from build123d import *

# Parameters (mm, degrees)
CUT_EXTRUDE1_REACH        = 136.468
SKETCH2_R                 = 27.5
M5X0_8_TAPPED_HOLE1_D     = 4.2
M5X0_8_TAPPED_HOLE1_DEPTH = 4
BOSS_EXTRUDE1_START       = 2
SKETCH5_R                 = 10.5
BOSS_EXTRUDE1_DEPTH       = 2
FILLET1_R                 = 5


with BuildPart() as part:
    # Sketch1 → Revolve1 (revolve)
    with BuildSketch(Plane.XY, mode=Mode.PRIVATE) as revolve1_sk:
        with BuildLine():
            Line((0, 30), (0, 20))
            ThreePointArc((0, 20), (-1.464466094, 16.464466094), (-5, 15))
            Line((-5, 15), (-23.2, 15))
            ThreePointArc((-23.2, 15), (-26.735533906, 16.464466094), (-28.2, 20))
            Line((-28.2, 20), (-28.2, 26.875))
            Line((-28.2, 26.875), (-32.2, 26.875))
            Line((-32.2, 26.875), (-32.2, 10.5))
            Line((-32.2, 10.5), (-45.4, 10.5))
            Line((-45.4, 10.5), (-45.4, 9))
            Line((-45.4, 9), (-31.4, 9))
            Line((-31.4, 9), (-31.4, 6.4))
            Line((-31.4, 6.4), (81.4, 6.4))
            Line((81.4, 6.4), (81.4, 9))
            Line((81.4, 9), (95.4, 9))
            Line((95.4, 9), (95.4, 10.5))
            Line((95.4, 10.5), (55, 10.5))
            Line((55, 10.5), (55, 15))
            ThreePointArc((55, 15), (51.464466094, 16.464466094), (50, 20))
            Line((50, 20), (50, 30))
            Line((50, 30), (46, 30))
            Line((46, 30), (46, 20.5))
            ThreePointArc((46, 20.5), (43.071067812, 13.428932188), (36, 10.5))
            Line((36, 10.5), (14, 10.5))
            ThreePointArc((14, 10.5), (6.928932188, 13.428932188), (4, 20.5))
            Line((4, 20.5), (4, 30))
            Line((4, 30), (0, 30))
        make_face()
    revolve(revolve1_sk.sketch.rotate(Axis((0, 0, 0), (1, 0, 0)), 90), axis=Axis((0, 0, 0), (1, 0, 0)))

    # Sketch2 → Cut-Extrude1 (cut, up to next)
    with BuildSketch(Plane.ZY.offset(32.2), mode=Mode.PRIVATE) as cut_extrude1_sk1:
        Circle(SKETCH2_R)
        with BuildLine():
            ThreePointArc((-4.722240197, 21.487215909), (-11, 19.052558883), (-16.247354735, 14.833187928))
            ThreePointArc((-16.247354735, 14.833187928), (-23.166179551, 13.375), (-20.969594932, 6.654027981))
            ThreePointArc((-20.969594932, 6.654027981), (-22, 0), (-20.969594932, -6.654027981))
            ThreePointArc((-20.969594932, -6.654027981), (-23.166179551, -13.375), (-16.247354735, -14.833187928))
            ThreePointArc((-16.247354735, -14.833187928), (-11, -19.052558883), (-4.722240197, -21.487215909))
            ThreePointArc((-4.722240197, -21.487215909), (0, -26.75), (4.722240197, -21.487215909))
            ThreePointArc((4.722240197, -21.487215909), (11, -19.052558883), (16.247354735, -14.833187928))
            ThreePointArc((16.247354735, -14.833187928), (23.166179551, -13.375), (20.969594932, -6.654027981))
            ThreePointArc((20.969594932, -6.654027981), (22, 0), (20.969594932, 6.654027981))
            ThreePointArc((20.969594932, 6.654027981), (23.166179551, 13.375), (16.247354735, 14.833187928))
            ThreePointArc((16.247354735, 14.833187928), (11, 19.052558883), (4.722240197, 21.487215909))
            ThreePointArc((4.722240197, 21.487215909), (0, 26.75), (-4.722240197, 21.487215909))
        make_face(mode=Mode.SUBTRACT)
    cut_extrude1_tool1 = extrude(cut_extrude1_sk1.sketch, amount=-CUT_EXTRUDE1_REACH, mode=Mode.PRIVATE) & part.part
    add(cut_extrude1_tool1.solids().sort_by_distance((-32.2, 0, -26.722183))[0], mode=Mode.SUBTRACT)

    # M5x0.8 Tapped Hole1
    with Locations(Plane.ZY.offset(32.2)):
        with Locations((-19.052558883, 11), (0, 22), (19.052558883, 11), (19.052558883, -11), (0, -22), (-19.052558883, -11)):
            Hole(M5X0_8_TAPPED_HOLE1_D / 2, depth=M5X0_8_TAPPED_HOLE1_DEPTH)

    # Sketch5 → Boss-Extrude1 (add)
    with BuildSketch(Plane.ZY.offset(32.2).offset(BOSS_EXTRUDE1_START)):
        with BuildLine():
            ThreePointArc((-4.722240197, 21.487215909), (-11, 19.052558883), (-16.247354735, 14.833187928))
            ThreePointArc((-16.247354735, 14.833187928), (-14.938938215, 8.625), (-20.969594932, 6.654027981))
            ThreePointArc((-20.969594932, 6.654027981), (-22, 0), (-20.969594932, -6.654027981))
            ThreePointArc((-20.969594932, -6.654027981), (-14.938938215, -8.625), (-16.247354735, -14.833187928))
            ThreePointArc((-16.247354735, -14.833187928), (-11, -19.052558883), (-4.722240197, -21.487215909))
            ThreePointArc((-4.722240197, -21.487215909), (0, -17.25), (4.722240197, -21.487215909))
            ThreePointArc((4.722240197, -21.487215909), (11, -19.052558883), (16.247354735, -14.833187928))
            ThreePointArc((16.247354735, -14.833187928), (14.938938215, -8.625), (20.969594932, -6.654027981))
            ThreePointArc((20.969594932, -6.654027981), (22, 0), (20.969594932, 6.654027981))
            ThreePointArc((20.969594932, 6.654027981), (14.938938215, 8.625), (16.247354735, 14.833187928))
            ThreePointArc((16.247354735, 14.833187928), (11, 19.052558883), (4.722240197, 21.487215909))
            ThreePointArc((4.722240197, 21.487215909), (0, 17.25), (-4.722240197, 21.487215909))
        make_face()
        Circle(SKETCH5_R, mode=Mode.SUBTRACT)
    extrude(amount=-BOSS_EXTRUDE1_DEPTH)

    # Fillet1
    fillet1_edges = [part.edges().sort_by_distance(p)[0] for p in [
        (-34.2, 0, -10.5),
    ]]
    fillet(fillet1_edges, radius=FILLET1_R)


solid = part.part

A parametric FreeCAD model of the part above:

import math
import FreeCAD as App
import Part
import Sketcher

V = App.Vector


def edges_at(feature, points):
    """Names of the edges that pass closest to the given points."""
    edges = feature.Shape.Edges
    near = lambda p: min(range(len(edges)), key=lambda i: edges[i].distToShape(Part.Vertex(*p))[0])
    return sorted({f"Edge{near(p) + 1}" for p in points})

doc = App.newDocument("Part")
body = doc.addObject("PartDesign::Body", "Body")

# Sketch on XY plane
sketch1 = body.newObject("Sketcher::SketchObject", "Sketch")
sketch1.AttachmentSupport = (doc.getObject("XY_Plane"), [""])
sketch1.MapMode = "FlatFace"
sketch1.addGeometry([
    Part.LineSegment(V(0, 30, 0), V(0, 20, 0)),  # 0
    Part.ArcOfCircle(Part.Circle(V(-5, 20, 0), V(0, 0, 1), 5), math.radians(-90), math.radians(0)),  # 1
    Part.LineSegment(V(-5, 15, 0), V(-23.2, 15, 0)),  # 2
    Part.ArcOfCircle(Part.Circle(V(-23.2, 20, 0), V(0, 0, 1), 5), math.radians(180), math.radians(270)),  # 3
    Part.LineSegment(V(-28.2, 20, 0), V(-28.2, 26.9, 0)),  # 4
    Part.LineSegment(V(-28.2, 26.9, 0), V(-32.2, 26.9, 0)),  # 5
    Part.LineSegment(V(-32.2, 26.9, 0), V(-32.2, 10.5, 0)),  # 6
    Part.LineSegment(V(-32.2, 10.5, 0), V(-45.4, 10.5, 0)),  # 7
    Part.LineSegment(V(-45.4, 10.5, 0), V(-45.4, 9, 0)),  # 8
    Part.LineSegment(V(-45.4, 9, 0), V(-31.4, 9, 0)),  # 9
    Part.LineSegment(V(-31.4, 9, 0), V(-31.4, 6.4, 0)),  # 10
    Part.LineSegment(V(-31.4, 6.4, 0), V(81.4, 6.4, 0)),  # 11
    Part.LineSegment(V(81.4, 6.4, 0), V(81.4, 9, 0)),  # 12
    Part.LineSegment(V(81.4, 9, 0), V(95.4, 9, 0)),  # 13
    Part.LineSegment(V(95.4, 9, 0), V(95.4, 10.5, 0)),  # 14
    Part.LineSegment(V(95.4, 10.5, 0), V(55, 10.5, 0)),  # 15
    Part.LineSegment(V(55, 10.5, 0), V(55, 15, 0)),  # 16
    Part.ArcOfCircle(Part.Circle(V(55, 20, 0), V(0, 0, 1), 5), math.radians(180), math.radians(270)),  # 17
    Part.LineSegment(V(50, 20, 0), V(50, 30, 0)),  # 18
    Part.LineSegment(V(50, 30, 0), V(46, 30, 0)),  # 19
    Part.LineSegment(V(46, 30, 0), V(46, 20.5, 0)),  # 20
    Part.ArcOfCircle(Part.Circle(V(36, 20.5, 0), V(0, 0, 1), 10), math.radians(-90), math.radians(0)),  # 21
    Part.LineSegment(V(36, 10.5, 0), V(14, 10.5, 0)),  # 22
    Part.ArcOfCircle(Part.Circle(V(14, 20.5, 0), V(0, 0, 1), 10), math.radians(180), math.radians(270)),  # 23
    Part.LineSegment(V(4, 20.5, 0), V(4, 30, 0)),  # 24
    Part.LineSegment(V(4, 30, 0), V(0, 30, 0)),  # 25
], False)
sketch1.addConstraint([
    Sketcher.Constraint("Tangent", 0, 2, 1, 2),
    Sketcher.Constraint("Tangent", 1, 1, 2, 1),
    Sketcher.Constraint("Tangent", 2, 2, 3, 2),
    Sketcher.Constraint("Tangent", 3, 1, 4, 1),
    Sketcher.Constraint("Coincident", 4, 2, 5, 1),
    Sketcher.Constraint("Coincident", 5, 2, 6, 1),
    Sketcher.Constraint("Coincident", 6, 2, 7, 1),
    Sketcher.Constraint("Coincident", 7, 2, 8, 1),
    Sketcher.Constraint("Coincident", 8, 2, 9, 1),
    Sketcher.Constraint("Coincident", 9, 2, 10, 1),
    Sketcher.Constraint("Coincident", 10, 2, 11, 1),
    Sketcher.Constraint("Coincident", 11, 2, 12, 1),
    Sketcher.Constraint("Coincident", 12, 2, 13, 1),
    Sketcher.Constraint("Coincident", 13, 2, 14, 1),
    Sketcher.Constraint("Coincident", 14, 2, 15, 1),
    Sketcher.Constraint("Coincident", 15, 2, 16, 1),
    Sketcher.Constraint("Coincident", 16, 2, 17, 2),
    Sketcher.Constraint("Tangent", 17, 1, 18, 1),
    Sketcher.Constraint("Coincident", 18, 2, 19, 1),
    Sketcher.Constraint("Coincident", 19, 2, 20, 1),
    Sketcher.Constraint("Tangent", 20, 2, 21, 2),
    Sketcher.Constraint("Tangent", 21, 1, 22, 1),
    Sketcher.Constraint("Tangent", 22, 2, 23, 2),
    Sketcher.Constraint("Tangent", 23, 1, 24, 1),
    Sketcher.Constraint("Coincident", 24, 2, 25, 1),
    Sketcher.Constraint("Coincident", 25, 2, 0, 1),
    Sketcher.Constraint("Vertical", 0),
    Sketcher.Constraint("Horizontal", 2),
    Sketcher.Constraint("Vertical", 4),
    Sketcher.Constraint("Horizontal", 5),
    Sketcher.Constraint("Vertical", 6),
    Sketcher.Constraint("Horizontal", 7),
    Sketcher.Constraint("Vertical", 8),
    Sketcher.Constraint("Horizontal", 9),
    Sketcher.Constraint("Vertical", 10),
    Sketcher.Constraint("Horizontal", 11),
    Sketcher.Constraint("Vertical", 12),
    Sketcher.Constraint("Horizontal", 13),
    Sketcher.Constraint("Vertical", 14),
    Sketcher.Constraint("Horizontal", 15),
    Sketcher.Constraint("Vertical", 16),
    Sketcher.Constraint("Vertical", 18),
    Sketcher.Constraint("Horizontal", 19),
    Sketcher.Constraint("Vertical", 20),
    Sketcher.Constraint("Horizontal", 22),
    Sketcher.Constraint("Vertical", 24),
    Sketcher.Constraint("Horizontal", 25),
    Sketcher.Constraint("Equal", 1, 3),
    Sketcher.Constraint("Equal", 3, 17),
    Sketcher.Constraint("Equal", 21, 23),
    Sketcher.Constraint("PointOnObject", 0, 2, -2),
    Sketcher.Constraint("Horizontal", 3, 3, 17, 3),
    Sketcher.Constraint("Horizontal", 9, 2, 12, 2),
    Sketcher.Constraint("Horizontal", 7, 2, 14, 2),
    Sketcher.Constraint("Horizontal", 15, 2, 21, 1),
    Sketcher.Constraint("Horizontal", 19, 2, 24, 2),
    Sketcher.Constraint("Vertical", 17, 3, 15, 2),
    Sketcher.Constraint("Equal", 9, 13),
    Sketcher.Constraint("Equal", 5, 19),
    Sketcher.Constraint("Equal", 19, 25),
    Sketcher.Constraint("Radius", 1, 5.0),
    Sketcher.Constraint("Radius", 21, 10.0),
    Sketcher.Constraint("DistanceX", 5, 2, 5, 1, 4.0),
    Sketcher.Constraint("DistanceX", 9, 1, 9, 2, 14.0),
    Sketcher.Constraint("DistanceX", 22, 2, 22, 1, 22.0),
    Sketcher.Constraint("DistanceY", 0, 2, 0, 1, 10.0),
    Sketcher.Constraint("DistanceX", 2, 2, 2, 1, 18.2),
    Sketcher.Constraint("DistanceX", 7, 2, 7, 1, 13.2),
    Sketcher.Constraint("DistanceX", 11, 1, 11, 2, 112.8),
    Sketcher.Constraint("DistanceY", 8, 2, 8, 1, 1.5),
    Sketcher.Constraint("DistanceY", 10, 2, 10, 1, 2.6),
    Sketcher.Constraint("DistanceY", 16, 1, 16, 2, 4.5),
    Sketcher.Constraint("DistanceY", -1, 1, 1, 3, 20.0),
    Sketcher.Constraint("DistanceY", 4, 1, 4, 2, 6.875),
])
revolution = body.newObject("PartDesign::Revolution", "Revolution")
revolution.Profile = sketch1
revolution.ReferenceAxis = (sketch1, ["H_Axis"])
revolution.Angle = 360

# Sketch on YZ plane
sketch2 = body.newObject("Sketcher::SketchObject", "Sketch001")
sketch2.AttachmentSupport = (doc.getObject("YZ_Plane"), [""])
sketch2.MapMode = "FlatFace"
sketch2.AttachmentOffset = App.Placement(V(0, 0, -32.2), App.Rotation())
sketch2.addGeometry([
    Part.Circle(V(0, 0, 0), V(0, 0, 1), 27.5),  # 0
    Part.ArcOfCircle(Part.Circle(V(0, 0, 0), V(0, 0, 1), 22), math.radians(-48), math.radians(-12)),  # 1
    Part.ArcOfCircle(Part.Circle(V(22, 0, 0), V(0, 0, 1), 4.8), math.radians(-96), math.radians(96)),  # 2
    Part.ArcOfCircle(Part.Circle(V(0, 0, 0), V(0, 0, 1), 22), math.radians(12), math.radians(48)),  # 3
    Part.ArcOfCircle(Part.Circle(V(11, 19.1, 0), V(0, 0, 1), 4.8), math.radians(-36), math.radians(156)),  # 4
    Part.ArcOfCircle(Part.Circle(V(0, 0, 0), V(0, 0, 1), 22), math.radians(72), math.radians(108)),  # 5
    Part.ArcOfCircle(Part.Circle(V(-11, 19.1, 0), V(0, 0, 1), 4.8), math.radians(24), math.radians(216)),  # 6
    Part.ArcOfCircle(Part.Circle(V(0, 0, 0), V(0, 0, 1), 22), math.radians(132), math.radians(168)),  # 7
    Part.ArcOfCircle(Part.Circle(V(-22, 0, 0), V(0, 0, 1), 4.8), math.radians(84), math.radians(276)),  # 8
    Part.ArcOfCircle(Part.Circle(V(0, 0, 0), V(0, 0, 1), 22), math.radians(-168), math.radians(-132)),  # 9
    Part.ArcOfCircle(Part.Circle(V(-11, -19.1, 0), V(0, 0, 1), 4.8), math.radians(144), math.radians(336)),  # 10
    Part.ArcOfCircle(Part.Circle(V(0, 0, 0), V(0, 0, 1), 22), math.radians(-108), math.radians(-72)),  # 11
    Part.ArcOfCircle(Part.Circle(V(11, -19.1, 0), V(0, 0, 1), 4.8), math.radians(-156), math.radians(36)),  # 12
], False)
sketch2.addConstraint([
    Sketcher.Constraint("Coincident", 1, 2, 2, 1),
    Sketcher.Constraint("Coincident", 2, 2, 3, 1),
    Sketcher.Constraint("Coincident", 3, 2, 4, 1),
    Sketcher.Constraint("Coincident", 4, 2, 5, 1),
    Sketcher.Constraint("Coincident", 5, 2, 6, 1),
    Sketcher.Constraint("Coincident", 6, 2, 7, 1),
    Sketcher.Constraint("Coincident", 7, 2, 8, 1),
    Sketcher.Constraint("Coincident", 8, 2, 9, 1),
    Sketcher.Constraint("Coincident", 9, 2, 10, 1),
    Sketcher.Constraint("Coincident", 10, 2, 11, 1),
    Sketcher.Constraint("Coincident", 11, 2, 12, 1),
    Sketcher.Constraint("Coincident", 12, 2, 1, 1),
    Sketcher.Constraint("Coincident", 0, 3, -1, 1),
    Sketcher.Constraint("Coincident", 1, 3, -1, 1),
    Sketcher.Constraint("Coincident", 3, 3, -1, 1),
    Sketcher.Constraint("Coincident", 5, 3, -1, 1),
    Sketcher.Constraint("Coincident", 7, 3, -1, 1),
    Sketcher.Constraint("Coincident", 9, 3, -1, 1),
    Sketcher.Constraint("Coincident", 11, 3, -1, 1),
    Sketcher.Constraint("Equal", 1, 3),
    Sketcher.Constraint("Equal", 2, 4),
    Sketcher.Constraint("Equal", 3, 5),
    Sketcher.Constraint("Equal", 4, 6),
    Sketcher.Constraint("Equal", 5, 7),
    Sketcher.Constraint("Equal", 6, 8),
    Sketcher.Constraint("Equal", 7, 9),
    Sketcher.Constraint("Equal", 8, 10),
    Sketcher.Constraint("Equal", 9, 11),
    Sketcher.Constraint("Equal", 10, 12),
    Sketcher.Constraint("Symmetric", 2, 3, 8, 3, -1, 1),
    Sketcher.Constraint("Symmetric", 4, 3, 10, 3, -1, 1),
    Sketcher.Constraint("Symmetric", 6, 3, 12, 3, -1, 1),
    Sketcher.Constraint("Symmetric", 4, 3, 6, 3, -2),
    Sketcher.Constraint("PointOnObject", 2, 3, -1),
    Sketcher.Constraint("Diameter", 0, 55.0),
    Sketcher.Constraint("Radius", 1, 22.0),
    Sketcher.Constraint("Radius", 2, 4.75),
    Sketcher.Constraint("DistanceX", -1, 1, 2, 3, 22.0),
    Sketcher.Constraint("DistanceX", -1, 1, 4, 3, 11.0),
    Sketcher.Constraint("DistanceY", -1, 1, 4, 3, 19.052559),
])
pocket1 = body.newObject("PartDesign::Pocket", "Pocket")
pocket1.Profile = sketch2
pocket1.Length = 4
pocket1.Reversed = True

# Sketch on YZ plane
sketch3 = body.newObject("Sketcher::SketchObject", "Sketch002")
sketch3.AttachmentSupport = (doc.getObject("YZ_Plane"), [""])
sketch3.MapMode = "FlatFace"
sketch3.AttachmentOffset = App.Placement(V(0, 0, -32.2), App.Rotation())
sketch3.addGeometry([
    Part.Circle(V(11, -19.1, 0), V(0, 0, 1), 2.1),  # 0
    Part.Circle(V(22, 0, 0), V(0, 0, 1), 2.1),  # 1
    Part.Circle(V(11, 19.1, 0), V(0, 0, 1), 2.1),  # 2
    Part.Circle(V(-11, 19.1, 0), V(0, 0, 1), 2.1),  # 3
    Part.Circle(V(-22, 0, 0), V(0, 0, 1), 2.1),  # 4
    Part.Circle(V(-11, -19.1, 0), V(0, 0, 1), 2.1),  # 5
], False)
sketch3.addConstraint([
    Sketcher.Constraint("Equal", 0, 1),
    Sketcher.Constraint("Equal", 1, 2),
    Sketcher.Constraint("Equal", 2, 3),
    Sketcher.Constraint("Equal", 3, 4),
    Sketcher.Constraint("Equal", 4, 5),
    Sketcher.Constraint("Symmetric", 0, 3, 3, 3, -1, 1),
    Sketcher.Constraint("Symmetric", 1, 3, 4, 3, -1, 1),
    Sketcher.Constraint("Symmetric", 2, 3, 5, 3, -1, 1),
    Sketcher.Constraint("Symmetric", 2, 3, 3, 3, -2),
    Sketcher.Constraint("PointOnObject", 1, 3, -1),
    Sketcher.Constraint("Diameter", 0, 4.2),
    Sketcher.Constraint("DistanceX", -1, 1, 0, 3, 11.0),
    Sketcher.Constraint("DistanceX", -1, 1, 1, 3, 22.0),
    Sketcher.Constraint("DistanceY", 0, 3, -1, 1, 19.052559),
])
doc.recompute()
hole = body.newObject("PartDesign::Hole", "Hole")
hole.Profile = sketch3
hole.ThreadType = "None"
hole.Diameter = 4.2
hole.DepthType = "Dimension"
hole.Depth = 4
hole.DrillPoint = "Flat"
hole.Reversed = True

# Sketch on YZ plane
sketch4 = body.newObject("Sketcher::SketchObject", "Sketch003")
sketch4.AttachmentSupport = (doc.getObject("YZ_Plane"), [""])
sketch4.MapMode = "FlatFace"
sketch4.AttachmentOffset = App.Placement(V(0, 0, -34.2), App.Rotation())
sketch4.addGeometry([
    Part.ArcOfCircle(Part.Circle(V(0, 0, 0), V(0, 0, 1), 22), math.radians(-48), math.radians(-12)),  # 0
    Part.ArcOfCircle(Part.Circle(V(11, -19.1, 0), V(0, 0, 1), 4.8), math.radians(36), math.radians(204)),  # 1
    Part.ArcOfCircle(Part.Circle(V(0, 0, 0), V(0, 0, 1), 22), math.radians(-108), math.radians(-72)),  # 2
    Part.ArcOfCircle(Part.Circle(V(-11, -19.1, 0), V(0, 0, 1), 4.8), math.radians(-24), math.radians(144)),  # 3
    Part.ArcOfCircle(Part.Circle(V(0, 0, 0), V(0, 0, 1), 22), math.radians(-168), math.radians(-132)),  # 4
    Part.ArcOfCircle(Part.Circle(V(-22, 0, 0), V(0, 0, 1), 4.8), math.radians(-84), math.radians(84)),  # 5
    Part.ArcOfCircle(Part.Circle(V(0, 0, 0), V(0, 0, 1), 22), math.radians(132), math.radians(168)),  # 6
    Part.ArcOfCircle(Part.Circle(V(-11, 19.1, 0), V(0, 0, 1), 4.8), math.radians(-144), math.radians(24)),  # 7
    Part.ArcOfCircle(Part.Circle(V(0, 0, 0), V(0, 0, 1), 22), math.radians(72), math.radians(108)),  # 8
    Part.ArcOfCircle(Part.Circle(V(11, 19.1, 0), V(0, 0, 1), 4.8), math.radians(156), math.radians(324)),  # 9
    Part.ArcOfCircle(Part.Circle(V(0, 0, 0), V(0, 0, 1), 22), math.radians(12), math.radians(48)),  # 10
    Part.ArcOfCircle(Part.Circle(V(22, 0, 0), V(0, 0, 1), 4.8), math.radians(96), math.radians(264)),  # 11
    Part.Circle(V(0, 0, 0), V(0, 0, 1), 10.5),  # 12
], False)
sketch4.addConstraint([
    Sketcher.Constraint("Coincident", 0, 1, 1, 1),
    Sketcher.Constraint("Coincident", 1, 2, 2, 2),
    Sketcher.Constraint("Coincident", 2, 1, 3, 1),
    Sketcher.Constraint("Coincident", 3, 2, 4, 2),
    Sketcher.Constraint("Coincident", 4, 1, 5, 1),
    Sketcher.Constraint("Coincident", 5, 2, 6, 2),
    Sketcher.Constraint("Coincident", 6, 1, 7, 1),
    Sketcher.Constraint("Coincident", 7, 2, 8, 2),
    Sketcher.Constraint("Coincident", 8, 1, 9, 1),
    Sketcher.Constraint("Coincident", 9, 2, 10, 2),
    Sketcher.Constraint("Coincident", 10, 1, 11, 1),
    Sketcher.Constraint("Coincident", 11, 2, 0, 2),
    Sketcher.Constraint("Coincident", 0, 3, -1, 1),
    Sketcher.Constraint("Coincident", 2, 3, -1, 1),
    Sketcher.Constraint("Coincident", 4, 3, -1, 1),
    Sketcher.Constraint("Coincident", 6, 3, -1, 1),
    Sketcher.Constraint("Coincident", 8, 3, -1, 1),
    Sketcher.Constraint("Coincident", 10, 3, -1, 1),
    Sketcher.Constraint("Coincident", 12, 3, -1, 1),
    Sketcher.Constraint("Equal", 0, 2),
    Sketcher.Constraint("Equal", 1, 3),
    Sketcher.Constraint("Equal", 2, 4),
    Sketcher.Constraint("Equal", 3, 5),
    Sketcher.Constraint("Equal", 4, 6),
    Sketcher.Constraint("Equal", 5, 7),
    Sketcher.Constraint("Equal", 6, 8),
    Sketcher.Constraint("Equal", 7, 9),
    Sketcher.Constraint("Equal", 8, 10),
    Sketcher.Constraint("Equal", 9, 11),
    Sketcher.Constraint("Symmetric", 1, 3, 7, 3, -1, 1),
    Sketcher.Constraint("Symmetric", 3, 3, 9, 3, -1, 1),
    Sketcher.Constraint("Symmetric", 5, 3, 11, 3, -1, 1),
    Sketcher.Constraint("Symmetric", 1, 3, 3, 3, -2),
    Sketcher.Constraint("PointOnObject", 5, 3, -1),
    Sketcher.Constraint("Diameter", 12, 21.0),
    Sketcher.Constraint("Radius", 0, 22.0),
    Sketcher.Constraint("Radius", 1, 4.75),
    Sketcher.Constraint("DistanceX", -1, 1, 1, 3, 11.0),
    Sketcher.Constraint("DistanceX", 5, 3, -1, 1, 22.0),
    Sketcher.Constraint("DistanceY", 1, 3, -1, 1, 19.052559),
])
pad1 = body.newObject("PartDesign::Pad", "Pad")
pad1.Profile = sketch4
pad1.Length = 2
doc.recompute()

fillet = body.newObject("PartDesign::Fillet", "Fillet")
fillet.Base = (pad1, edges_at(pad1, [(-34.2, 0, -10.5)]))
fillet.Radius = 5

doc.recompute()
